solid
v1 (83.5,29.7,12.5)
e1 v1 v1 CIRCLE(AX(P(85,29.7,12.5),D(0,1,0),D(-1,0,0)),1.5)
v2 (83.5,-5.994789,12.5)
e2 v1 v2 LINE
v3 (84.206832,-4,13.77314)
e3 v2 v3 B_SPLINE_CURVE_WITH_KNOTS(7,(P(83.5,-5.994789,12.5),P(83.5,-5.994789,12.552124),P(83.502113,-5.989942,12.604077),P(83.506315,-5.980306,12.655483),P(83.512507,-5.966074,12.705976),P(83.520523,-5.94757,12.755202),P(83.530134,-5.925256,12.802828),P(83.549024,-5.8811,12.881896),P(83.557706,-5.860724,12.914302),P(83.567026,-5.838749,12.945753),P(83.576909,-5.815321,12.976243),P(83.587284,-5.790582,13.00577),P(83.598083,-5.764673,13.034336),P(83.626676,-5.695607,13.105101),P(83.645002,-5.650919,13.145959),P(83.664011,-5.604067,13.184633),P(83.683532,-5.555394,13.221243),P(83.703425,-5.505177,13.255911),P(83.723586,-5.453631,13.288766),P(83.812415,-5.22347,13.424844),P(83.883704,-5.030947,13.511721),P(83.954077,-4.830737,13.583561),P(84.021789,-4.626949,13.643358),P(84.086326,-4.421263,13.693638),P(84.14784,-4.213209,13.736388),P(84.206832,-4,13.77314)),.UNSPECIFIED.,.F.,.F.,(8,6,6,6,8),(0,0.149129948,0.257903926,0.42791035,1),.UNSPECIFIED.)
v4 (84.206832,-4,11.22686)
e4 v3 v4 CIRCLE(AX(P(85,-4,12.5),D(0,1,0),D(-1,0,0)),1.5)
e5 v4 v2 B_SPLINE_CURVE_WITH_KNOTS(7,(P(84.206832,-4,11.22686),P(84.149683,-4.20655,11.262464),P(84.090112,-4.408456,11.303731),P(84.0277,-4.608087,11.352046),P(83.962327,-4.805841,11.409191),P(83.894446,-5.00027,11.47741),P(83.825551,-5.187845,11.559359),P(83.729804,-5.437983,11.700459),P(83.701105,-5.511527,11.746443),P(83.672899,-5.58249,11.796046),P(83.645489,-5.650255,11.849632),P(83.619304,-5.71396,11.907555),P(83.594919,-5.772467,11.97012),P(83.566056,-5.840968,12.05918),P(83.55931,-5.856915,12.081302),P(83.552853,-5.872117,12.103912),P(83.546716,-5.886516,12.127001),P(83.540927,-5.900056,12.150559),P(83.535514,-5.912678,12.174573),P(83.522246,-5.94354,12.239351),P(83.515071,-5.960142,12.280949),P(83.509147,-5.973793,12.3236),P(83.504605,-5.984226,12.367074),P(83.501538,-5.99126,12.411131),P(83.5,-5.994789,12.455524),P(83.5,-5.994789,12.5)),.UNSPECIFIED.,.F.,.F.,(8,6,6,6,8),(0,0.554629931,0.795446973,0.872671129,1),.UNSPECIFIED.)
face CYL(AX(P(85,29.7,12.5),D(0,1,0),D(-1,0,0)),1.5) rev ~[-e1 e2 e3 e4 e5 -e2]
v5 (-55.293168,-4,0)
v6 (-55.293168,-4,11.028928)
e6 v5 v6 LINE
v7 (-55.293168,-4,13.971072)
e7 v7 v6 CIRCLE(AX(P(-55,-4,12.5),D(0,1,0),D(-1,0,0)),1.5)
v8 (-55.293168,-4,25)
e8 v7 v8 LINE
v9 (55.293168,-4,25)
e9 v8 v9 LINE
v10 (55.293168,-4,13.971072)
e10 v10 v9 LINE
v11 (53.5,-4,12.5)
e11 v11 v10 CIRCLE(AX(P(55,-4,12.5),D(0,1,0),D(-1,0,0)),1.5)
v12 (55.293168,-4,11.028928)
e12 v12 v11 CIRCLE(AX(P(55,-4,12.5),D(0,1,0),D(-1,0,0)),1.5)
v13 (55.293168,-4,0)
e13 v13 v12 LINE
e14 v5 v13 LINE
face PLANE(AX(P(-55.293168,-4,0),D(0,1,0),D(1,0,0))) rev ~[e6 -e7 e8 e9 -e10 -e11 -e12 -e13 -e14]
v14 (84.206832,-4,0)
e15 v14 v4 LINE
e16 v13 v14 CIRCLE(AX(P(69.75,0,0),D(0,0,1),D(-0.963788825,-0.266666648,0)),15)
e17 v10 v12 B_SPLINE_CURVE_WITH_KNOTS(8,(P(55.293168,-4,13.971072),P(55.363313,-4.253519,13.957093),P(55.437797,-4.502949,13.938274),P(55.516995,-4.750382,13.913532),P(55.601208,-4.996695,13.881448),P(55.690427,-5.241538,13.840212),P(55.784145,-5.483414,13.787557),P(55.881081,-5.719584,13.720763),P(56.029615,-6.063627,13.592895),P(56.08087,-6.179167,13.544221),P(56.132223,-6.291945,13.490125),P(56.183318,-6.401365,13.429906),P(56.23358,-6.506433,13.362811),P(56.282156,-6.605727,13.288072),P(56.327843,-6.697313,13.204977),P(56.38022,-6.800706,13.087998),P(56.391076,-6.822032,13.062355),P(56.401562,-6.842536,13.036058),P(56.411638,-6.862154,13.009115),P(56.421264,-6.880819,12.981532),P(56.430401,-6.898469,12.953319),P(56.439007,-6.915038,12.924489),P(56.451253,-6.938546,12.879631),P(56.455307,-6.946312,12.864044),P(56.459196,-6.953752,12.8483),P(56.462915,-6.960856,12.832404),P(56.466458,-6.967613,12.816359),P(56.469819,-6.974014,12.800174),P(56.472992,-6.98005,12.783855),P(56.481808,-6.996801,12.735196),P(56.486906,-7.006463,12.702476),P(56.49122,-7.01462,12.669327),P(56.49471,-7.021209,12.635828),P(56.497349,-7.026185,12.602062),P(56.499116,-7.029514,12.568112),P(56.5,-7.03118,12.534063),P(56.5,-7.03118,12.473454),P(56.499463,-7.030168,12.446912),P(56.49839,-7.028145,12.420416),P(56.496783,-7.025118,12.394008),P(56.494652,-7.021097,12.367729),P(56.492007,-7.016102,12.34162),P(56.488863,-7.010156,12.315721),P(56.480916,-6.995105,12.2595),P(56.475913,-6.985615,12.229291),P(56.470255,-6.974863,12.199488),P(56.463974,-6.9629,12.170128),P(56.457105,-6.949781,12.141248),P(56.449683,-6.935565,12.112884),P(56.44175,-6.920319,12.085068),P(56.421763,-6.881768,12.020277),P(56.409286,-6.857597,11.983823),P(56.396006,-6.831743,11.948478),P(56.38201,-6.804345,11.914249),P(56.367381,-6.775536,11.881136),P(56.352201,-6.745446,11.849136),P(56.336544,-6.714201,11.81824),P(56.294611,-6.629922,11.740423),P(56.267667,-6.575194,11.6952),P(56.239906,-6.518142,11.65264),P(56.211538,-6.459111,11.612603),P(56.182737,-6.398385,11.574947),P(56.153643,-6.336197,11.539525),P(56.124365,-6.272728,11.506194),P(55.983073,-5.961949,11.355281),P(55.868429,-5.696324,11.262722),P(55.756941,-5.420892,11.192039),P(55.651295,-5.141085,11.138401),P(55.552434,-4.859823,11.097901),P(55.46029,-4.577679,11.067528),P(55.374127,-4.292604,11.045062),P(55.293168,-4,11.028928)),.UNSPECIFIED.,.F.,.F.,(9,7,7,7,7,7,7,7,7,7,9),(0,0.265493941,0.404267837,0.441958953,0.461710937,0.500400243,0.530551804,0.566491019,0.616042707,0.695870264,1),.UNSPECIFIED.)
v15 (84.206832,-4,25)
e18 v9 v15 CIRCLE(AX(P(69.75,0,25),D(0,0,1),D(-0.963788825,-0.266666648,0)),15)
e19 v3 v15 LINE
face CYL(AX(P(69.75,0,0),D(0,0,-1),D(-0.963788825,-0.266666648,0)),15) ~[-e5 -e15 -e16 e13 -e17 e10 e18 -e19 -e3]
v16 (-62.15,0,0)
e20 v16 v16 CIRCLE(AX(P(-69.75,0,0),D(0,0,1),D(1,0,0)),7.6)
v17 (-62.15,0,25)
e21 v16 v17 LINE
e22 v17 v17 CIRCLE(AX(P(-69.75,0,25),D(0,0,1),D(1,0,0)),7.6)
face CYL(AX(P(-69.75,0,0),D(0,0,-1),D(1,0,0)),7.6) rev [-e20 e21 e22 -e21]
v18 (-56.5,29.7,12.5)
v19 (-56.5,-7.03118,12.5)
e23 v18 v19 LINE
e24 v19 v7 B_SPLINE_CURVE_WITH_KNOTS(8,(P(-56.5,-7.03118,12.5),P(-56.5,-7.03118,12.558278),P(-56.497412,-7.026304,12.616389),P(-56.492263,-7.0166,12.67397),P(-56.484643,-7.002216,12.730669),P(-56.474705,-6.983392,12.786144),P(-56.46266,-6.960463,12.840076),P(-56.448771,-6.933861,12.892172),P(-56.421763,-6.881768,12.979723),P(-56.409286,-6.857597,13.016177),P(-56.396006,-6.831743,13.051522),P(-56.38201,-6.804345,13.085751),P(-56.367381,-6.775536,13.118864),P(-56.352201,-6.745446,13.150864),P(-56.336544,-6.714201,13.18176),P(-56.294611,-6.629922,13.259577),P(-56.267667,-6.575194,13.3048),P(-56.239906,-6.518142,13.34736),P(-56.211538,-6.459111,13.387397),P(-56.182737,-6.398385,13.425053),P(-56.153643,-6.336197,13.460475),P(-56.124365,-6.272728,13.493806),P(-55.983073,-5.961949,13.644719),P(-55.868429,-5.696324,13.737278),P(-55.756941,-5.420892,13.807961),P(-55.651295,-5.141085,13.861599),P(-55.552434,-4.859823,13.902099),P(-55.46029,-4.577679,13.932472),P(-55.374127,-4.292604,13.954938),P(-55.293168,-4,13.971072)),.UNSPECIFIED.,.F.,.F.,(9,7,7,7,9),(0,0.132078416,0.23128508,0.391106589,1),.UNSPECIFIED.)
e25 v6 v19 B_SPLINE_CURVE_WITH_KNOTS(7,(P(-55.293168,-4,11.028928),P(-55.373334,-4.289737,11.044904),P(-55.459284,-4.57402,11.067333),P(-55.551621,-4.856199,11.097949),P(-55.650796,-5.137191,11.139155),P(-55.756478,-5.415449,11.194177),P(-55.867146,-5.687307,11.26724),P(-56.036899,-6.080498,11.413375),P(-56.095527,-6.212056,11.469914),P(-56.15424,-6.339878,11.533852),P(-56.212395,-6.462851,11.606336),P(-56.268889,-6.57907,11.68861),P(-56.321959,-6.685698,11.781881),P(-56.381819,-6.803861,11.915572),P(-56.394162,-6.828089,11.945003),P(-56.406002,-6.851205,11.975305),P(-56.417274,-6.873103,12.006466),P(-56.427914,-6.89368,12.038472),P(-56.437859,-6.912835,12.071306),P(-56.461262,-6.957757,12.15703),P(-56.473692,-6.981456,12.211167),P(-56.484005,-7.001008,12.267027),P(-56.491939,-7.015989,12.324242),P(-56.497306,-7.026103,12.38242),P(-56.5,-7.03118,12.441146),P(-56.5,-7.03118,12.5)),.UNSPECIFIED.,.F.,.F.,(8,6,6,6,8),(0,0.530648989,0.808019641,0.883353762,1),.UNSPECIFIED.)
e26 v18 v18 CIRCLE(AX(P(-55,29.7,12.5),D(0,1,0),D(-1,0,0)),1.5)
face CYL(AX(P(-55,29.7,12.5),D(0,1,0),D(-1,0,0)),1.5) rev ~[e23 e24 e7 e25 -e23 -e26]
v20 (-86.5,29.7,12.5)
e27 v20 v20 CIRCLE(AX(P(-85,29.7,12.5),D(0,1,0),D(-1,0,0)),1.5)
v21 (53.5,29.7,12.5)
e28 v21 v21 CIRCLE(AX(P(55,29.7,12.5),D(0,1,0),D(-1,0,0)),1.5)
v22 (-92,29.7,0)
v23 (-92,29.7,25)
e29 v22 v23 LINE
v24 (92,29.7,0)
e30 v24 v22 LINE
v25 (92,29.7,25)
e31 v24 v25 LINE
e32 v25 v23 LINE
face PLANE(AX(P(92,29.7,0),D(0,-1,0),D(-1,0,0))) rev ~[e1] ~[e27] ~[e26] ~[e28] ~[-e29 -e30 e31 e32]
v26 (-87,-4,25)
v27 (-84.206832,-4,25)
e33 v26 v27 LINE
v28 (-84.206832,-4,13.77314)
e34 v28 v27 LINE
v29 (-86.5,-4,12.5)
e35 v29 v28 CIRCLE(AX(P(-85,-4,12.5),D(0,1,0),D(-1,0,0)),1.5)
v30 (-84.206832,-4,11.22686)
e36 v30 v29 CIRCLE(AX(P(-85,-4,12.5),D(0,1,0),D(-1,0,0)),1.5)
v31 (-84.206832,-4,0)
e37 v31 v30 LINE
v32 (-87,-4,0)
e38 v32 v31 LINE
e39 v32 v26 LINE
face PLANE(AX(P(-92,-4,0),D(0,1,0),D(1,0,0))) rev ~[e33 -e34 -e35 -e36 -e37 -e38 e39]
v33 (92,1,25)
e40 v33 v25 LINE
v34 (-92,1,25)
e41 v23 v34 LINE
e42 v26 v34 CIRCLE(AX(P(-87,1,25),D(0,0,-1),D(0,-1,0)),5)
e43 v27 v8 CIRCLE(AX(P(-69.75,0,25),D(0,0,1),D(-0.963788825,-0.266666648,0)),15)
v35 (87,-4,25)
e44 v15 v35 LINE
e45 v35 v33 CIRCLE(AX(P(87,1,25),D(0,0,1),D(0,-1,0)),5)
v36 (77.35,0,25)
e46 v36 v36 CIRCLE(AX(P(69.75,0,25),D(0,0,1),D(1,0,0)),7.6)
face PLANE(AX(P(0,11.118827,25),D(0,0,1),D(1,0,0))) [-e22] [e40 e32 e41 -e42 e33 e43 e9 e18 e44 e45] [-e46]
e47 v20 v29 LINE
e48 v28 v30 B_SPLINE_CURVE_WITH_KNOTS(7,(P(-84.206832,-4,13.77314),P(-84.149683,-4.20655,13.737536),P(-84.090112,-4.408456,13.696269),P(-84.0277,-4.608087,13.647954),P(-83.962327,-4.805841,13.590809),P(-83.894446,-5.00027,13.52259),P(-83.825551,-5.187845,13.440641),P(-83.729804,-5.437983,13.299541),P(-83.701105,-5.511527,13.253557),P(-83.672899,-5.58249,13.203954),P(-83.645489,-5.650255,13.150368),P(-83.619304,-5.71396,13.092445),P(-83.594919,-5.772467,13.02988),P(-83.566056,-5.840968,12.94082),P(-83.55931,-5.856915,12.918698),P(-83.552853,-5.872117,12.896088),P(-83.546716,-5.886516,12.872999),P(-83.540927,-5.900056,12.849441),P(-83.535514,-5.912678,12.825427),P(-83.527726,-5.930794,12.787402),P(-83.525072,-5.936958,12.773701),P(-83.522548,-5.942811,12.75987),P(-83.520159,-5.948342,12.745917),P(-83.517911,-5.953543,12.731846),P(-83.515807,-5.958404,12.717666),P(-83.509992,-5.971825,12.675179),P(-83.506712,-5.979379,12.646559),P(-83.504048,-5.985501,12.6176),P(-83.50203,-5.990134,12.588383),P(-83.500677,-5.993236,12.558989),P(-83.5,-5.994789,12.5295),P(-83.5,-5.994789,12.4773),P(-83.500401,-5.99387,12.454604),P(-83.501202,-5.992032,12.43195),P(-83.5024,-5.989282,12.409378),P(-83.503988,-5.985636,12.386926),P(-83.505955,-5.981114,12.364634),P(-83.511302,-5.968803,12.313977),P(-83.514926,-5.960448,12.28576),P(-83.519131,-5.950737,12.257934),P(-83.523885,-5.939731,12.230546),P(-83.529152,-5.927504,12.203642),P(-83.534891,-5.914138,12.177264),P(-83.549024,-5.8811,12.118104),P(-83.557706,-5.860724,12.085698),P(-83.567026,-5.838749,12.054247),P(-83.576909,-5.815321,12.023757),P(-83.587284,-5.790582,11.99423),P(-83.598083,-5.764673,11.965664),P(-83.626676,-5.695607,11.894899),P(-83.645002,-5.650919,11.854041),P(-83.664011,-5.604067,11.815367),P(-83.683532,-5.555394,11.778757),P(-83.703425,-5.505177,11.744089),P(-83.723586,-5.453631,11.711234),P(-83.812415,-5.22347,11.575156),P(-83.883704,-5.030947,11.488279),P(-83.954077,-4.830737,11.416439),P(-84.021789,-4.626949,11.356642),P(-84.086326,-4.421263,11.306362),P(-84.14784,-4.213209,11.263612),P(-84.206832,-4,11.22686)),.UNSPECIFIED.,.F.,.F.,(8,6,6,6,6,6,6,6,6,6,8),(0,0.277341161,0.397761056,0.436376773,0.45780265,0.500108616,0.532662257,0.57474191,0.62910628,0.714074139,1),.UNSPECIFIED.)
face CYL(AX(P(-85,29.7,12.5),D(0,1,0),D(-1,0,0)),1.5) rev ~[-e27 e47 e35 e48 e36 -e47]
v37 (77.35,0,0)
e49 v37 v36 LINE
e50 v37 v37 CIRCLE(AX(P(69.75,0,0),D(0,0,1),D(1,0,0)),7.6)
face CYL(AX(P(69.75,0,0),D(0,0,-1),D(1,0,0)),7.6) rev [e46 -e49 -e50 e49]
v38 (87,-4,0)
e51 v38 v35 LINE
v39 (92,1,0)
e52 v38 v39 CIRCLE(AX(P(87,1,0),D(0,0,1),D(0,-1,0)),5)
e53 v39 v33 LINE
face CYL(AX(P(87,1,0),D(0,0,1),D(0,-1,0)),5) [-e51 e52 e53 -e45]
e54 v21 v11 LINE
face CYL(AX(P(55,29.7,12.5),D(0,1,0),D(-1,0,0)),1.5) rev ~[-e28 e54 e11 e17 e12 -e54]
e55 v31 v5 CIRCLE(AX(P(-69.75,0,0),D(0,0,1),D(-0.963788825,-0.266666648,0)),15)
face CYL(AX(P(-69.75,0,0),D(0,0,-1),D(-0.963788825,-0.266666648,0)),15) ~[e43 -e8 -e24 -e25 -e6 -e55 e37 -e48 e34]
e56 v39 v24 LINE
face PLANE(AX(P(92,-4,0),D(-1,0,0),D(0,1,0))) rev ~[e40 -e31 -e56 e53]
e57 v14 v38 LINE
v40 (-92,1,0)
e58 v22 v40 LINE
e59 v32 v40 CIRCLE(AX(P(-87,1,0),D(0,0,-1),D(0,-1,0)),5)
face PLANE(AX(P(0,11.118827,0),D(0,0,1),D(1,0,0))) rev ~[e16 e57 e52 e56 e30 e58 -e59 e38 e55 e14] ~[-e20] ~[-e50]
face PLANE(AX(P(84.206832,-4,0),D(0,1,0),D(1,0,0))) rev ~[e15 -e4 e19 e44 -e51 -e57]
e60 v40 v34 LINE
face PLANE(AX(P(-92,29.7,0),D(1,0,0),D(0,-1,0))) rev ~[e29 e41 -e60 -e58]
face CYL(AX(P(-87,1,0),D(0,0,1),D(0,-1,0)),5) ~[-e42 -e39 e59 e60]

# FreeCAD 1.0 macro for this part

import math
import FreeCAD as App
import Part
import Sketcher

V = App.Vector


def edges_at(feature, points):
    """Names of the edges that pass closest to the given points."""
    edges = feature.Shape.Edges
    near = lambda p: min(range(len(edges)), key=lambda i: edges[i].distToShape(Part.Vertex(*p))[0])
    return sorted({f"Edge{near(p) + 1}" for p in points})

doc = App.newDocument("Part")
body = doc.addObject("PartDesign::Body", "Body")

# Sketch on XY plane
sketch1 = body.newObject("Sketcher::SketchObject", "Sketch")
sketch1.AttachmentSupport = (doc.getObject("XY_Plane"), [""])
sketch1.MapMode = "FlatFace"
sketch1.addGeometry([
    Part.ArcOfCircle(Part.Circle(V(-70, 0, 0), V(0, 0, 1), 15), math.radians(-165), math.radians(-15)),  # 0
    Part.LineSegment(V(-55, -4, 0), V(55, -4, 0)),  # 1
    Part.ArcOfCircle(Part.Circle(V(70, 0, 0), V(0, 0, 1), 15), math.radians(-165), math.radians(-15)),  # 2
    Part.LineSegment(V(84, -4, 0), V(92, -4, 0)),  # 3
    Part.LineSegment(V(92, -4, 0), V(92, 30, 0)),  # 4
    Part.LineSegment(V(92, 30, 0), V(-92, 30, 0)),  # 5
    Part.LineSegment(V(-92, 30, 0), V(-92, -4, 0)),  # 6
    Part.LineSegment(V(-92, -4, 0), V(-84, -4, 0)),  # 7
    Part.Circle(V(-70, 0, 0), V(0, 0, 1), 8),  # 8
    Part.Circle(V(70, 0, 0), V(0, 0, 1), 8),  # 9
], False)
sketch1.addConstraint([
    Sketcher.Constraint("Coincident", 0, 2, 1, 1),
    Sketcher.Constraint("Coincident", 1, 2, 2, 1),
    Sketcher.Constraint("Coincident", 2, 2, 3, 1),
    Sketcher.Constraint("Coincident", 3, 2, 4, 1),
    Sketcher.Constraint("Coincident", 4, 2, 5, 1),
    Sketcher.Constraint("Coincident", 5, 2, 6, 1),
    Sketcher.Constraint("Coincident", 6, 2, 7, 1),
    Sketcher.Constraint("Coincident", 7, 2, 0, 1),
    Sketcher.Constraint("Horizontal", 1),
    Sketcher.Constraint("Horizontal", 3),
    Sketcher.Constraint("Vertical", 4),
    Sketcher.Constraint("Horizontal", 5),
    Sketcher.Constraint("Vertical", 6),
    Sketcher.Constraint("Horizontal", 7),
    Sketcher.Constraint("Coincident", 8, 3, 0, 3),
    Sketcher.Constraint("Coincident", 9, 3, 2, 3),
    Sketcher.Constraint("Equal", 0, 2),
    Sketcher.Constraint("Equal", 8, 9),
    Sketcher.Constraint("Symmetric", 0, 3, 2, 3, -1, 1),
    Sketcher.Constraint("Symmetric", 3, 2, 6, 2, -2),
    Sketcher.Constraint("PointOnObject", 0, 3, -1),
    Sketcher.Constraint("Horizontal", 1, 2, 2, 2),
    Sketcher.Constraint("Radius", 0, 15.0),
    Sketcher.Constraint("Diameter", 8, 15.2),
    Sketcher.Constraint("DistanceX", 5, 2, 5, 1, 184.0),
    Sketcher.Constraint("DistanceY", 4, 1, 4, 2, 33.7),
    Sketcher.Constraint("DistanceY", 0, 2, -1, 1, 4.0),
    Sketcher.Constraint("DistanceX", 0, 3, 2, 3, 139.5),
])
pad1 = body.newObject("PartDesign::Pad", "Pad")
pad1.Profile = sketch1
pad1.Length = 25

# Sketch on XZ plane
sketch2 = body.newObject("Sketcher::SketchObject", "Sketch001")
sketch2.AttachmentSupport = (doc.getObject("XZ_Plane"), [""])
sketch2.MapMode = "FlatFace"
sketch2.AttachmentOffset = App.Placement(V(0, 0, -29.7), App.Rotation())
sketch2.addGeometry([
    Part.Circle(V(-55, 12.5, 0), V(0, 0, 1), 1.5),
    Part.Circle(V(55, 12.5, 0), V(0, 0, 1), 1.5),
    Part.Circle(V(-85, 12.5, 0), V(0, 0, 1), 1.5),
    Part.Circle(V(85, 12.5, 0), V(0, 0, 1), 1.5),
], False)
sketch2.addConstraint([
    Sketcher.Constraint("Equal", 0, 1),
    Sketcher.Constraint("Equal", 1, 2),
    Sketcher.Constraint("Equal", 2, 3),
    Sketcher.Constraint("Symmetric", 0, 3, 1, 3, -2),
    Sketcher.Constraint("Symmetric", 2, 3, 3, 3, -2),
    Sketcher.Constraint("Horizontal", 1, 3, 2, 3),
    Sketcher.Constraint("Diameter", 0, 3.0),
    Sketcher.Constraint("DistanceX", 0, 3, -1, 1, 55.0),
    Sketcher.Constraint("DistanceX", 2, 3, -1, 1, 85.0),
    Sketcher.Constraint("DistanceY", -1, 1, 0, 3, 12.5),
])
pocket1 = body.newObject("PartDesign::Pocket", "Pocket")
pocket1.Profile = sketch2
pocket1.Type = "ThroughAll"
pocket1.Reversed = True
doc.recompute()

fillet = body.newObject("PartDesign::Fillet", "Fillet")
fillet.Base = (pocket1, edges_at(pocket1, [(-92, -4, 12.5), (92, -4, 12.5)]))
fillet.Radius = 5

doc.recompute()
